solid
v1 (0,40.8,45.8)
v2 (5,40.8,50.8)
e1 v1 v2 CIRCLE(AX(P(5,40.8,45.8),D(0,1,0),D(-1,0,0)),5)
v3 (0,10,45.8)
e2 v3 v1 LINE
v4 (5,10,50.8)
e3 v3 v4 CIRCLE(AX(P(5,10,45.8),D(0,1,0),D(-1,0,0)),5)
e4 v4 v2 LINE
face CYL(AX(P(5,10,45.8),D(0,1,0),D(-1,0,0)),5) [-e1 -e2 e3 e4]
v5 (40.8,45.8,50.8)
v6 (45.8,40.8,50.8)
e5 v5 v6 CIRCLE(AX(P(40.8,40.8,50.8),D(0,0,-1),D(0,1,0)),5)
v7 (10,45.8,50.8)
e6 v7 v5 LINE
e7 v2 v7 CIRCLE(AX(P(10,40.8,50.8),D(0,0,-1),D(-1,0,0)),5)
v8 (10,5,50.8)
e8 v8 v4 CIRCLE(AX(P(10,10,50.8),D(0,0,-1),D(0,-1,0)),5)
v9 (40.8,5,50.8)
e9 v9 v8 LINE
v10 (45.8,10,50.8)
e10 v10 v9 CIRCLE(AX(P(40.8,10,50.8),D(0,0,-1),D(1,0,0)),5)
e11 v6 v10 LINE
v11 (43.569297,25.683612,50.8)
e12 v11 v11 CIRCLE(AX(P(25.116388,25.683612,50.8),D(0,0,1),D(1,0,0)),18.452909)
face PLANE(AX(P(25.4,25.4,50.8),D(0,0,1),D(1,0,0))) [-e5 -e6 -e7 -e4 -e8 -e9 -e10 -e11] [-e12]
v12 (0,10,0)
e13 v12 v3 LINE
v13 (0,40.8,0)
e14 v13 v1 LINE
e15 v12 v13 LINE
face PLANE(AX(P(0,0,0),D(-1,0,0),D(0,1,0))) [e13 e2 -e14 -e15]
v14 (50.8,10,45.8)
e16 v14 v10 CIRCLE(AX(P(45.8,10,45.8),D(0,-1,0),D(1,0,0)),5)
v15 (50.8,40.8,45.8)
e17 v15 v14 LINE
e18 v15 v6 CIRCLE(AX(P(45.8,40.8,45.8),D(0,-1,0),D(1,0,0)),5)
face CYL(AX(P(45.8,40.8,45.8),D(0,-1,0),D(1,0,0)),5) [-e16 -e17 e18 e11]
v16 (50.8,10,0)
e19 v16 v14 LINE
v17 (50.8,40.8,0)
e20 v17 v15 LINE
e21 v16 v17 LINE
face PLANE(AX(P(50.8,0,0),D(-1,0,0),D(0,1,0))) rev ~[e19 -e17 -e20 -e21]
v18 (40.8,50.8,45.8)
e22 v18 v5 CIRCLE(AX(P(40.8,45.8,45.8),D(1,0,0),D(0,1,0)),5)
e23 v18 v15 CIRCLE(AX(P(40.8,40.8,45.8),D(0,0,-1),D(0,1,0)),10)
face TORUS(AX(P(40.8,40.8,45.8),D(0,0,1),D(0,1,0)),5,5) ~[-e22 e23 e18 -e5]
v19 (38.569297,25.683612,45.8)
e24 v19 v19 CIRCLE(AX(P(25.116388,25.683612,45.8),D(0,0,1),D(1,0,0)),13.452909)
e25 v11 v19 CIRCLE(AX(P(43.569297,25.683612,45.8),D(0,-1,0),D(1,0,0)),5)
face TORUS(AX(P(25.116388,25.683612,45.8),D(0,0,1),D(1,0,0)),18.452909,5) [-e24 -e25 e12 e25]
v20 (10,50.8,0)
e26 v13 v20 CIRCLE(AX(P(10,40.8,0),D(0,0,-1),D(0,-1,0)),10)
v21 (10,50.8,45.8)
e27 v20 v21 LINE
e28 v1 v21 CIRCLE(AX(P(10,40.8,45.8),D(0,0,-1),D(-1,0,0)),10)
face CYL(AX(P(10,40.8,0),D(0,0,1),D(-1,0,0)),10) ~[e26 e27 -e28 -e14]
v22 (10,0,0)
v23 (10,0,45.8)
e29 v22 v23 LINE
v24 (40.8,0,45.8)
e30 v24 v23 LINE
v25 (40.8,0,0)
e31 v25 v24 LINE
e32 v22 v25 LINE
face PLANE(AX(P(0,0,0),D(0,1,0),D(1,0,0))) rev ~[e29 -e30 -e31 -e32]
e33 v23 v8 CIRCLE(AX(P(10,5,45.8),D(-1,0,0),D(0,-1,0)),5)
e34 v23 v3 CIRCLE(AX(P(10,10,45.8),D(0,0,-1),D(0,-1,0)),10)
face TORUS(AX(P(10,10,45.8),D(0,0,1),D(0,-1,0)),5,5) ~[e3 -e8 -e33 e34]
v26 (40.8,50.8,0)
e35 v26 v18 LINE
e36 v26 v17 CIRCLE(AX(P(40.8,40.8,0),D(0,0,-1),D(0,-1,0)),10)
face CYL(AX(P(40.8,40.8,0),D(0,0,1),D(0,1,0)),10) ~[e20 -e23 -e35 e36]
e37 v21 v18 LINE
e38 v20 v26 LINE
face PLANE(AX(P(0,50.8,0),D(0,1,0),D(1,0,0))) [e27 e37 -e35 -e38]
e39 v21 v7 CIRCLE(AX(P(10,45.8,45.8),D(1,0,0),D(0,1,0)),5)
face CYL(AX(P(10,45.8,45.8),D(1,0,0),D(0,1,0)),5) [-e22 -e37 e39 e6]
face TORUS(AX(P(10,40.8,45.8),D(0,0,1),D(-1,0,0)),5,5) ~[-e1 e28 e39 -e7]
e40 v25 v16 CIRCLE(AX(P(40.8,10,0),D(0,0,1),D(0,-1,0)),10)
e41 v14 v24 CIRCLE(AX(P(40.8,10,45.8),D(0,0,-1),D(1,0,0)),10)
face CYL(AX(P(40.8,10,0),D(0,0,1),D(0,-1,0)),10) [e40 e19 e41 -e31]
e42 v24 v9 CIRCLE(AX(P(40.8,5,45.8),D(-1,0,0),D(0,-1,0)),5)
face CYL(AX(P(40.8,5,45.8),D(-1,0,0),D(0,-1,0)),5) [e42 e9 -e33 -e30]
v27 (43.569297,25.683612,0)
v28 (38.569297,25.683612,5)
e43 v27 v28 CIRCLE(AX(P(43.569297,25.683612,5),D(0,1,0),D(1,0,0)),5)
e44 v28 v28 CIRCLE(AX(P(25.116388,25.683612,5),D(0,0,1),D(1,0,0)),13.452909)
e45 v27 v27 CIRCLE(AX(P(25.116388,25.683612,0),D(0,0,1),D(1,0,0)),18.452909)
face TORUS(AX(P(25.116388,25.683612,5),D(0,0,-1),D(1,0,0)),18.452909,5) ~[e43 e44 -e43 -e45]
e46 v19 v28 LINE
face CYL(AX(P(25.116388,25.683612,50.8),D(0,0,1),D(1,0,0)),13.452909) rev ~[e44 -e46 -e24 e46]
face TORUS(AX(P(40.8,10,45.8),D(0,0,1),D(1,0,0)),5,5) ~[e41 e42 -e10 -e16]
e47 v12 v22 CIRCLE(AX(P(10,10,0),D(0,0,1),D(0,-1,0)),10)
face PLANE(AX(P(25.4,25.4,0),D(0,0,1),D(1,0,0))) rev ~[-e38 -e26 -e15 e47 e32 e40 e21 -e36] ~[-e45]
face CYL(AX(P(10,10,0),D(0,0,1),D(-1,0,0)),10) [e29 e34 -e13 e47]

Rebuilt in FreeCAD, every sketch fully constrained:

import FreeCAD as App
import Part
import Sketcher
Q = App.Units.Quantity


def edges_at(feature, points):
    """Names of the edges that pass closest to the given points."""
    edges = feature.Shape.Edges
    near = lambda p: min(range(len(edges)), key=lambda i: edges[i].distToShape(Part.Vertex(*p))[0])
    return sorted({f"Edge{near(p) + 1}" for p in points})

doc = App.newDocument("Part")
params = doc.addObject("Spreadsheet::Sheet", "Params")
for row, (alias, value) in enumerate([
    ("sketch1_width", "50.8 mm"),
    ("pad1_length", "50.8 mm"),
    ("fillet_radius", "10 mm"),
    ("fillet2_radius", "5 mm"),
], start=1):
    params.set(f"A{row}", alias)
    params.set(f"B{row}", "=" + value)
    params.setAlias(f"B{row}", alias)

body = doc.addObject("PartDesign::Body", "Body")

# Sketch on XY plane
sketch1 = body.newObject("Sketcher::SketchObject", "Sketch")
sketch1.AttachmentSupport = (doc.getObject("XY_Plane"), [""])
sketch1.MapMode = "FlatFace"
sketch1.addGeometry([
    Part.LineSegment(App.Vector(0, 50.8, 0), App.Vector(0, 0, 0)),
    Part.LineSegment(App.Vector(0, 0, 0), App.Vector(50.8, 0, 0)),
    Part.LineSegment(App.Vector(50.8, 0, 0), App.Vector(50.8, 50.8, 0)),
    Part.LineSegment(App.Vector(50.8, 50.8, 0), App.Vector(0, 50.8, 0)),
], False)
sketch1.addConstraint([
    Sketcher.Constraint("Coincident", 0, 2, 1, 1),
    Sketcher.Constraint("Coincident", 1, 2, 2, 1),
    Sketcher.Constraint("Coincident", 2, 2, 3, 1),
    Sketcher.Constraint("Coincident", 3, 2, 0, 1),
    Sketcher.Constraint("Vertical", 0),
    Sketcher.Constraint("Horizontal", 1),
    Sketcher.Constraint("Vertical", 2),
    Sketcher.Constraint("Horizontal", 3),
    Sketcher.Constraint("Coincident", 0, 2, -1, 1),
    Sketcher.Constraint("Equal", 3, 0),
    Sketcher.Constraint("DistanceX", 1, 1, 1, 2, Q("50.8 mm")),
])
sketch1.setExpression("Constraints[10]", "Params.sketch1_width")
pad1 = body.newObject("PartDesign::Pad", "Pad")
pad1.Profile = sketch1
pad1.setExpression("Length", "Params.pad1_length")

# Sketch on XY plane
sketch2 = body.newObject("Sketcher::SketchObject", "Sketch001")
sketch2.AttachmentSupport = (doc.getObject("XY_Plane"), [""])
sketch2.MapMode = "FlatFace"
sketch2.AttachmentOffset = App.Placement(App.Vector(0, 0, 50.8), App.Rotation())
sketch2.addGeometry(Part.Circle(App.Vector(25.116388, 25.683612, 0), App.Vector(0, 0, 1), 13.452909), False)
sketch2.addConstraint([
    Sketcher.Constraint("Diameter", 0, Q("26.905819 mm")),
    Sketcher.Constraint("DistanceY", -1, 1, 0, 3, Q("25.683612 mm")),
    Sketcher.Constraint("DistanceX", -1, 1, 0, 3, Q("25.116388 mm")),
])
pocket1 = body.newObject("PartDesign::Pocket", "Pocket")
pocket1.Profile = sketch2
pocket1.Type = "ThroughAll"
doc.recompute()

fillet = body.newObject("PartDesign::Fillet", "Fillet")
fillet.Base = (pocket1, edges_at(pocket1, [
    (50.8, 50.8, 25.4),
    (50.8, 0, 25.4),
    (0, 50.8, 25.4),
    (0, 0, 25.4),
]))
fillet.setExpression("Radius", "Params.fillet_radius")
doc.recompute()

fillet2 = body.newObject("PartDesign::Fillet", "Fillet001")
fillet2.Base = (fillet, edges_at(fillet, [
    (11.663, 25.684, 50.8),
    (11.663, 25.684, 0),
    (0, 25.4, 50.8),
    (2.929, 47.871, 50.8),
    (2.929, 2.929, 50.8),
    (25.4, 50.8, 50.8),
    (25.4, 0, 50.8),
    (47.871, 47.871, 50.8),
    (47.871, 2.929, 50.8),
    (50.8, 25.4, 50.8),
]))
fillet2.setExpression("Radius", "Params.fillet2_radius")

doc.recompute()
